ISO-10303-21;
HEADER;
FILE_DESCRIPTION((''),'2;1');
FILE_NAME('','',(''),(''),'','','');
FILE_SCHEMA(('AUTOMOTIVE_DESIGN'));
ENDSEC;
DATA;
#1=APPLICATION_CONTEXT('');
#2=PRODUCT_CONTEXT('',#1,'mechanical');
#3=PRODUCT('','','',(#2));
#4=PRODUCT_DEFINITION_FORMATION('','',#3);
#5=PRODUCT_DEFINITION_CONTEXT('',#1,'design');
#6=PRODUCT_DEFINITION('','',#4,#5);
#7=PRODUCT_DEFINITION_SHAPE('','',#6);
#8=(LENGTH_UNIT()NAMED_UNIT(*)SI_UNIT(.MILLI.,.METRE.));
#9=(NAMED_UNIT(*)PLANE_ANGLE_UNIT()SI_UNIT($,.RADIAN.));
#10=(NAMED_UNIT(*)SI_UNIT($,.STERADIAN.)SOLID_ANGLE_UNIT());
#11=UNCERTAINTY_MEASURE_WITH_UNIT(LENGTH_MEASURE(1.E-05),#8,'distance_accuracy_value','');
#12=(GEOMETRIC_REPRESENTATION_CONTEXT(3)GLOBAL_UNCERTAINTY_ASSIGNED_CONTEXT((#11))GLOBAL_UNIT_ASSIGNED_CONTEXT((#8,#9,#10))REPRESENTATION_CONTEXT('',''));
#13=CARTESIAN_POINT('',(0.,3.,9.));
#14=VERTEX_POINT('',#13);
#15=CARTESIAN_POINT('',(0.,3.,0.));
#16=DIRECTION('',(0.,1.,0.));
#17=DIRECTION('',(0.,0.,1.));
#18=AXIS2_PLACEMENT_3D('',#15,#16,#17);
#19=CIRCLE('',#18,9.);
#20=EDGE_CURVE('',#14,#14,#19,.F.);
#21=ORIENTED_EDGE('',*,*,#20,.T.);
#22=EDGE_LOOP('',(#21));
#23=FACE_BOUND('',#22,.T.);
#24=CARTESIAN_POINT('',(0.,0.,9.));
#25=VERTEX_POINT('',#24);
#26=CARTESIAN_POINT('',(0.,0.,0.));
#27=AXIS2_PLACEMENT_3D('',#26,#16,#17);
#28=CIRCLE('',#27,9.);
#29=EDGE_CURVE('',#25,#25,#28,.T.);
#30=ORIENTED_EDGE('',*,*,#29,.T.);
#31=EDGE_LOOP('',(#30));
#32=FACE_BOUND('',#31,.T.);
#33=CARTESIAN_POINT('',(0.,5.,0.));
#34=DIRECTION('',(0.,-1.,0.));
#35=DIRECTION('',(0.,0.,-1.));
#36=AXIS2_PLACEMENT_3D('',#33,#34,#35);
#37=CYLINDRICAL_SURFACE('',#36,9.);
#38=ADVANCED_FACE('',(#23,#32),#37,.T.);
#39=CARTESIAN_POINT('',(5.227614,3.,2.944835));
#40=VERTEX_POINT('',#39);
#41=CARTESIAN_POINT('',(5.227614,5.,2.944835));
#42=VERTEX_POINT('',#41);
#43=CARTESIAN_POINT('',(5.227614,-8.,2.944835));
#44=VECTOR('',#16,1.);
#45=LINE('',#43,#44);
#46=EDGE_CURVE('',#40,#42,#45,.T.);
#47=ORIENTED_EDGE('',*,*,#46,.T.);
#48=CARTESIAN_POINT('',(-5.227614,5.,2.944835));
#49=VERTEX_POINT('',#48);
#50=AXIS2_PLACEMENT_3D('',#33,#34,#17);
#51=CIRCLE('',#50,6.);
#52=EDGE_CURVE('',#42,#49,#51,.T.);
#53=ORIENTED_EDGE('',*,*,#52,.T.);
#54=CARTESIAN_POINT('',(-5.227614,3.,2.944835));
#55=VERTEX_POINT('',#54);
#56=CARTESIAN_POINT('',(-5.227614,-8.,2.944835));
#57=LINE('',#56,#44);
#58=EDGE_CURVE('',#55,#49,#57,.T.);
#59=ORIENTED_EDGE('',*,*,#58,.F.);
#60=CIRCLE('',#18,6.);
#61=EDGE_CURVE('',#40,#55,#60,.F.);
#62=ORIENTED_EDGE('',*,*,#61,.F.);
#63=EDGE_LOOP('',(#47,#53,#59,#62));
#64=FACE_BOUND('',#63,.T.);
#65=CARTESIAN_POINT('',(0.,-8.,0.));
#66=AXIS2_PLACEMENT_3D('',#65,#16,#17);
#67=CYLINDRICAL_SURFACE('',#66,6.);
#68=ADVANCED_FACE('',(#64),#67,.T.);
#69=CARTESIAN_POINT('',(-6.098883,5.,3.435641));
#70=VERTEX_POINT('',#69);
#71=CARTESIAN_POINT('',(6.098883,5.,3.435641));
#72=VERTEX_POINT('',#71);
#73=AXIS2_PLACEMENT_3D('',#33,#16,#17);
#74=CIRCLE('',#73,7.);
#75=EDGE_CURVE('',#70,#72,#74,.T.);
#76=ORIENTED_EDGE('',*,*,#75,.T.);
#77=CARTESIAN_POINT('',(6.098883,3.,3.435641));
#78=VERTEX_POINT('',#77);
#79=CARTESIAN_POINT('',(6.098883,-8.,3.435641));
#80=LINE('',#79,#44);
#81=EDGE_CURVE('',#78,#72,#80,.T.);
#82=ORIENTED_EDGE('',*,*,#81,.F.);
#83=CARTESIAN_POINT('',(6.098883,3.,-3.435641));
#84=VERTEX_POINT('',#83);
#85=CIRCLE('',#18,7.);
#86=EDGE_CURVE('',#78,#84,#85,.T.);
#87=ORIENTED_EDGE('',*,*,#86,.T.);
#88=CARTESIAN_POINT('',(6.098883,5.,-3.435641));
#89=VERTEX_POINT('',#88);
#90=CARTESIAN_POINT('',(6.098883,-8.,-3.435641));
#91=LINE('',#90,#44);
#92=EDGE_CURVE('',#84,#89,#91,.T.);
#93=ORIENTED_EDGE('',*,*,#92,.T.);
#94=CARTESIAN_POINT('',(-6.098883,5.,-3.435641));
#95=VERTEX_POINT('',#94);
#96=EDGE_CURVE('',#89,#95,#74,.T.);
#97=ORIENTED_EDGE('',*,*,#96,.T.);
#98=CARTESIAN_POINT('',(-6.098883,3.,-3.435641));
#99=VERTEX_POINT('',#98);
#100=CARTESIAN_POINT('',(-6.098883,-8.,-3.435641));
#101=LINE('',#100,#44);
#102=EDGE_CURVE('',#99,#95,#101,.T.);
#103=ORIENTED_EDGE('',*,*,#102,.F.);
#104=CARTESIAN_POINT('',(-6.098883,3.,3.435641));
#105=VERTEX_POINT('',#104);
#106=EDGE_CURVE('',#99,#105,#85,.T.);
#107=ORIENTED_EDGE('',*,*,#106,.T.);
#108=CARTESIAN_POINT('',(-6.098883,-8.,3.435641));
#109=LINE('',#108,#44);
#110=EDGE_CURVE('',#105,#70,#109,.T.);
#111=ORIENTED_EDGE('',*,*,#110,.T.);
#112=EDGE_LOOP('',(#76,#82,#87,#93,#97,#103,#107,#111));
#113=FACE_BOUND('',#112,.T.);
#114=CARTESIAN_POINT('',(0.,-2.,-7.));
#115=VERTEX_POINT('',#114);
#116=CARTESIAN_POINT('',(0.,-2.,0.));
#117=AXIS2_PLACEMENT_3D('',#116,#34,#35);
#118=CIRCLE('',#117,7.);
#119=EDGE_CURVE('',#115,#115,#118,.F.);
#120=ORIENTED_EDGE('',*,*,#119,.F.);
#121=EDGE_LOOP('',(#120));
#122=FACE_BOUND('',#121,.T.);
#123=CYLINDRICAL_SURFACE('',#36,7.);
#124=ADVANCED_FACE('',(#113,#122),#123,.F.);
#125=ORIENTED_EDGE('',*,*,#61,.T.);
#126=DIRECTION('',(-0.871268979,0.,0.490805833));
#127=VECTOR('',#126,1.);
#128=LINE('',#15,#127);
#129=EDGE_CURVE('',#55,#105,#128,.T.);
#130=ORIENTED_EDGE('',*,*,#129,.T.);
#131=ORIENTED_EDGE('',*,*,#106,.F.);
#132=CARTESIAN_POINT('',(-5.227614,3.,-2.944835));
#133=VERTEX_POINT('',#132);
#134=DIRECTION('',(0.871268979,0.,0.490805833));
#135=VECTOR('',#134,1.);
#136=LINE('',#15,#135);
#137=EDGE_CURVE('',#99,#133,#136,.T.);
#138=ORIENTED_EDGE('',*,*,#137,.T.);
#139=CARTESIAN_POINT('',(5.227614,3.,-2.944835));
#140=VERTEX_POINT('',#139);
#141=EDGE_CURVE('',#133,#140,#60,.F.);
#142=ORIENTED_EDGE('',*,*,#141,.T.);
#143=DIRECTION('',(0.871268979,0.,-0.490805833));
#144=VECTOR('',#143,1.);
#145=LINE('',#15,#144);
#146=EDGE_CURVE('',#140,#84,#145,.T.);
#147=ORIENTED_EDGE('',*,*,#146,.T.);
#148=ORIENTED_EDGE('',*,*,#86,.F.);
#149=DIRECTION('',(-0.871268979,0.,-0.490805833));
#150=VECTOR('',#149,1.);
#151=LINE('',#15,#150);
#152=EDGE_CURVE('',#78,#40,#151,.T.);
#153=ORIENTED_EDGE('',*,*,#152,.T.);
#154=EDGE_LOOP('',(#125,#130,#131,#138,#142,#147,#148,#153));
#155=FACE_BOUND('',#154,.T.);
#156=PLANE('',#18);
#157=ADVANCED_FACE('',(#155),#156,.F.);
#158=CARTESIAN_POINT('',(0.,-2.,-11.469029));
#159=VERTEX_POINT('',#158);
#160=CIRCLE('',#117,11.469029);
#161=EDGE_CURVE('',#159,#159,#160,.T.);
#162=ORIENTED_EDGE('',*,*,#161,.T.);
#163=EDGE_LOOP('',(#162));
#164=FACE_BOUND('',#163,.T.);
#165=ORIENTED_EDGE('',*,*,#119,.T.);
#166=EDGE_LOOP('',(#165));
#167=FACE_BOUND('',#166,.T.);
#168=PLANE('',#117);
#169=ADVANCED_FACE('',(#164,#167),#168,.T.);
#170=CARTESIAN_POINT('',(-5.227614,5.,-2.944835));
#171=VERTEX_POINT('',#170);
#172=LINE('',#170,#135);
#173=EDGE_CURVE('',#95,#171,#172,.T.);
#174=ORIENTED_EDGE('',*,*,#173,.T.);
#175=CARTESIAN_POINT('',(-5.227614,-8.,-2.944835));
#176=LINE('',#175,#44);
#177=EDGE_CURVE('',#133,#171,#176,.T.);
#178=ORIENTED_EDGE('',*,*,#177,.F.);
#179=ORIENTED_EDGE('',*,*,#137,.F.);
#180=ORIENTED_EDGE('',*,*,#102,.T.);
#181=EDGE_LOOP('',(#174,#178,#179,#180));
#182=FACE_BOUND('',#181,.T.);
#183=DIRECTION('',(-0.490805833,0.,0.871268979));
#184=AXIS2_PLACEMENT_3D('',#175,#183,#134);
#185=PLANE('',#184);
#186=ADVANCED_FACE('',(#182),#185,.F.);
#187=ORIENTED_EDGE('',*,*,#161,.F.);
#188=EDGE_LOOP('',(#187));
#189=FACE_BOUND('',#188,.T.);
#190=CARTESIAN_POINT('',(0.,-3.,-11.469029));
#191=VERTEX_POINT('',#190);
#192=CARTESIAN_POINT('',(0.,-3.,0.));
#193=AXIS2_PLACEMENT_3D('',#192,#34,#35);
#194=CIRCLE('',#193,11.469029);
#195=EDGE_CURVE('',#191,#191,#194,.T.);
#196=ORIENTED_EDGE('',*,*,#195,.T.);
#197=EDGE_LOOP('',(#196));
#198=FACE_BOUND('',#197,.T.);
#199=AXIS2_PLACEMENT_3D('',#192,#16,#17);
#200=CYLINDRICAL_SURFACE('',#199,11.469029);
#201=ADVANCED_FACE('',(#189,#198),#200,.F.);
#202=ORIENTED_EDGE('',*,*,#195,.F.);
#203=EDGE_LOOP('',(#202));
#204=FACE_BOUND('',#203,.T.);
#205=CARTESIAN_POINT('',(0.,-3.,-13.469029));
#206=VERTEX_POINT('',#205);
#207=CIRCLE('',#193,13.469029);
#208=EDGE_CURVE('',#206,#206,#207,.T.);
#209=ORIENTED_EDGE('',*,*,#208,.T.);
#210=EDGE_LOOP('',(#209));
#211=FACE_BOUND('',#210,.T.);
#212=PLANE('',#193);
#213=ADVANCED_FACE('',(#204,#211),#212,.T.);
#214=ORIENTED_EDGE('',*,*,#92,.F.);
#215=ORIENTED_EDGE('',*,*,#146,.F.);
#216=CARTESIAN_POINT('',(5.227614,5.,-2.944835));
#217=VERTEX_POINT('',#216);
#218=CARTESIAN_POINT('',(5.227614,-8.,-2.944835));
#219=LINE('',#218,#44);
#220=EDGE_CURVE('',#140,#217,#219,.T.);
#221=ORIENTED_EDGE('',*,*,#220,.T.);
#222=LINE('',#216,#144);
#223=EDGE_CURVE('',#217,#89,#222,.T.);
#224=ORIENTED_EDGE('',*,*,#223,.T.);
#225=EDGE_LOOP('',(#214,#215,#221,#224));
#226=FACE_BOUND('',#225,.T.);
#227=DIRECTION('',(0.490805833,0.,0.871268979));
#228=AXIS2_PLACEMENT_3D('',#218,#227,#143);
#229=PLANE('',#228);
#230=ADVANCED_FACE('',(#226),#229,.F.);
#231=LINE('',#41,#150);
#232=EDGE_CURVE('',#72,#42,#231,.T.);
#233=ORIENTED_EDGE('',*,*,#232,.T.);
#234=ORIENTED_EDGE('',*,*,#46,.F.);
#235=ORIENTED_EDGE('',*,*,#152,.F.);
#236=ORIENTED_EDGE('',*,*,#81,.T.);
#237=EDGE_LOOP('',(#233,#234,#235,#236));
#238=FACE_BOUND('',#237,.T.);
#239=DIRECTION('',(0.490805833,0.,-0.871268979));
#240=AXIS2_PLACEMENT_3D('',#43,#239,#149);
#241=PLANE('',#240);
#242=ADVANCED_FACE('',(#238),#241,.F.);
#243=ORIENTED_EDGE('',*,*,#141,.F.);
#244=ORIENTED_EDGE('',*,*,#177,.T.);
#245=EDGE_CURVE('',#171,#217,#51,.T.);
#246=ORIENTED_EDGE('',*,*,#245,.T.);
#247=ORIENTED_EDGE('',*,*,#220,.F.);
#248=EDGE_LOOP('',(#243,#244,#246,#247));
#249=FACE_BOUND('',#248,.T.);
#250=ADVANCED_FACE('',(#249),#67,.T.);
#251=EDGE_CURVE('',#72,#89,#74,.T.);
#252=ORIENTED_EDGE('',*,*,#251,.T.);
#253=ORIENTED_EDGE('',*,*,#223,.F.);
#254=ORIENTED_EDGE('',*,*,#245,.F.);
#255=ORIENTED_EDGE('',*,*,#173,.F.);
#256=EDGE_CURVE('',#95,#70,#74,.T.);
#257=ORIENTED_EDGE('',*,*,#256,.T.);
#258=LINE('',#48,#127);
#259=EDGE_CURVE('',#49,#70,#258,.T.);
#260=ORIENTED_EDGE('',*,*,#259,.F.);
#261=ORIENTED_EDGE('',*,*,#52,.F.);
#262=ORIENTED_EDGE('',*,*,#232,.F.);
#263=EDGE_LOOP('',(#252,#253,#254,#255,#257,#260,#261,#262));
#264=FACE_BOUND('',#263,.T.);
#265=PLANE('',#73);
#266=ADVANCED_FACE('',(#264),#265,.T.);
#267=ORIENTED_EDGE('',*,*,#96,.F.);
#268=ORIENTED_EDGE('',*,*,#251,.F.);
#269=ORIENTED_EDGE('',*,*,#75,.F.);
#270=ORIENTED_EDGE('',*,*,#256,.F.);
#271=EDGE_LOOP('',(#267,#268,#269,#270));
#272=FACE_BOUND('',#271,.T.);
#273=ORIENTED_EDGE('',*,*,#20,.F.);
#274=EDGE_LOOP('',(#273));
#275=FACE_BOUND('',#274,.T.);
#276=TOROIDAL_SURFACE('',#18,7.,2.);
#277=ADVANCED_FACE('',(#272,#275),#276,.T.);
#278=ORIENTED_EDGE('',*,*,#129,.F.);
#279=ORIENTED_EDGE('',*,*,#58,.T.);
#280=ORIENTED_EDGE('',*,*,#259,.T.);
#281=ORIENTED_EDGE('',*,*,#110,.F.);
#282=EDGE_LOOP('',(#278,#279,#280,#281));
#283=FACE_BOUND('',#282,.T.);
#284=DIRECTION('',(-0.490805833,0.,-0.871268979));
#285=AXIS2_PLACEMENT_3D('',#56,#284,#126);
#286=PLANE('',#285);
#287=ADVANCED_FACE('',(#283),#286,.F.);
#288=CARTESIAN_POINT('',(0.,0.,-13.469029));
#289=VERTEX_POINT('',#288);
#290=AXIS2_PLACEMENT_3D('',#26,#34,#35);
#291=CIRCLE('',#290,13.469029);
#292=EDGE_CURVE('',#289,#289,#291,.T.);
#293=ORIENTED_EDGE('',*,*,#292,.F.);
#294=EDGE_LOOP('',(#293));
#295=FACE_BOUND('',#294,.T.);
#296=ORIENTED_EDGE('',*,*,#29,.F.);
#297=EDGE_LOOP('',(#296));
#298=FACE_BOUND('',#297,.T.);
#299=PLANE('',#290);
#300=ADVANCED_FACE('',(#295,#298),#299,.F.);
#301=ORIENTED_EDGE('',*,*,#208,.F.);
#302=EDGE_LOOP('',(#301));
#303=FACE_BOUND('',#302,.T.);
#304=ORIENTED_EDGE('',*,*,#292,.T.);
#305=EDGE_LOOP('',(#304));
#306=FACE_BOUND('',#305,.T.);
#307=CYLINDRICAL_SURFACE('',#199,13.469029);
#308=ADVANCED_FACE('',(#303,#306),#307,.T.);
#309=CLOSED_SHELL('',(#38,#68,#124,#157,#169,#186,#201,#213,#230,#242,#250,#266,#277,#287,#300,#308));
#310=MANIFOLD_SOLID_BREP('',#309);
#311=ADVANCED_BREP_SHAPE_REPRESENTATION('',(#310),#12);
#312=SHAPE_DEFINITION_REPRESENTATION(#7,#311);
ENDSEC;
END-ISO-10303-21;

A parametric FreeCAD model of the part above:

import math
import FreeCAD as App
import Part
import Sketcher
Q = App.Units.Quantity


def edges_at(feature, points):
    """Names of the edges that pass closest to the given points."""
    edges = feature.Shape.Edges
    near = lambda p: min(range(len(edges)), key=lambda i: edges[i].distToShape(Part.Vertex(*p))[0])
    return sorted({f"Edge{near(p) + 1}" for p in points})


def faces_at(feature, points):
    """Names of the faces that lie closest to the given points."""
    faces = feature.Shape.Faces
    near = lambda p: min(range(len(faces)), key=lambda i: faces[i].distToShape(Part.Vertex(*p))[0])
    return sorted({f"Face{near(p) + 1}" for p in points})

doc = App.newDocument("Part")
params = doc.addObject("Spreadsheet::Sheet", "Params")
for row, (alias, value) in enumerate([
    ("sketch1_diameter", "18 mm"),
    ("pad1_length", "5 mm"),
    ("pad2_length", "3 mm"),
    ("thickness_wall", "2 mm"),
    ("fillet_radius", "2 mm"),
    ("sketch3_radius", "6 mm"),
    ("sketch3_radius2", "7 mm"),
    ("pocket1_length", "13 mm"),
], start=1):
    params.set(f"A{row}", alias)
    params.set(f"B{row}", "=" + value)
    params.setAlias(f"B{row}", alias)

body = doc.addObject("PartDesign::Body", "Body")

# Sketch on XZ plane
sketch1 = doc.addObject("Sketcher::SketchObject", "Sketch")
body.addObject(sketch1)
sketch1.AttachmentSupport = (doc.XZ_Plane, [""])
sketch1.MapMode = "FlatFace"
sketch1.addGeometry(Part.Circle(App.Vector(0, 0, 0), App.Vector(0, 0, 1), 9), False)
sketch1.addConstraint(Sketcher.Constraint("Coincident", 0, 3, -1, 1))
sketch1.addConstraint(Sketcher.Constraint("Diameter", 0, Q("18 mm")))
sketch1.setExpression("Constraints[1]", "Params.sketch1_diameter")
pad1 = doc.addObject("PartDesign::Pad", "Pad")
body.addObject(pad1)
pad1.Profile = sketch1
pad1.setExpression("Length", "Params.pad1_length")
pad1.Reversed = True

# Sketch on XZ plane
sketch2 = doc.addObject("Sketcher::SketchObject", "Sketch001")
body.addObject(sketch2)
sketch2.AttachmentSupport = (doc.XZ_Plane, [""])
sketch2.MapMode = "FlatFace"
sketch2.addGeometry(Part.Circle(App.Vector(0, 0, 0), App.Vector(0, 0, 1), 13), False)
sketch2.addConstraint(Sketcher.Constraint("Coincident", 0, 3, -1, 1))
sketch2.addConstraint(Sketcher.Constraint("Diameter", 0, Q("26.938058 mm")))
pad2 = doc.addObject("PartDesign::Pad", "Pad001")
body.addObject(pad2)
pad2.Profile = sketch2
pad2.setExpression("Length", "Params.pad2_length")
doc.recompute()

thickness = doc.addObject("PartDesign::Thickness", "Thickness")
body.addObject(thickness)
thickness.Base = (pad2, faces_at(pad2, [(0, -3, 0)]))
thickness.setExpression("Value", "Params.thickness_wall")
thickness.Reversed = True
thickness.Join = "Intersection"
doc.recompute()

fillet = doc.addObject("PartDesign::Fillet", "Fillet")
body.addObject(fillet)
fillet.Base = (thickness, edges_at(thickness, [(0, 5, -9)]))
fillet.setExpression("Radius", "Params.fillet_radius")

# Sketch on XZ plane
sketch3 = doc.addObject("Sketcher::SketchObject", "Sketch002")
body.addObject(sketch3)
sketch3.AttachmentSupport = (doc.XZ_Plane, [""])
sketch3.MapMode = "FlatFace"
sketch3.AttachmentOffset = App.Placement(App.Vector(0, 0, 8), App.Rotation())
sketch3.addGeometry(Part.LineSegment(App.Vector(6.1, 3.4, 0), App.Vector(5.2, 2.9, 0)), False)
sketch3.addGeometry(Part.ArcOfCircle(Part.Circle(App.Vector(0, 0, 0), App.Vector(0, 0, 1), 6), math.radians(29), math.radians(151)), False)
sketch3.addGeometry(Part.LineSegment(App.Vector(-5.2, 2.9, 0), App.Vector(-6.1, 3.4, 0)), False)
sketch3.addGeometry(Part.ArcOfCircle(Part.Circle(App.Vector(0, 0, 0), App.Vector(0, 0, 1), 7), math.radians(29), math.radians(151)), False)
sketch3.addGeometry(Part.LineSegment(App.Vector(5.2, -2.9, 0), App.Vector(6.1, -3.4, 0)), False)
sketch3.addGeometry(Part.ArcOfCircle(Part.Circle(App.Vector(0, 0, 0), App.Vector(0, 0, 1), 7), math.radians(-151), math.radians(-29)), False)
sketch3.addGeometry(Part.LineSegment(App.Vector(-6.1, -3.4, 0), App.Vector(-5.2, -2.9, 0)), False)
sketch3.addGeometry(Part.ArcOfCircle(Part.Circle(App.Vector(0, 0, 0), App.Vector(0, 0, 1), 6), math.radians(-151), math.radians(-29)), False)
sketch3.addConstraint(Sketcher.Constraint("Coincident", 0, 2, 1, 1))
sketch3.addConstraint(Sketcher.Constraint("Coincident", 1, 2, 2, 1))
sketch3.addConstraint(Sketcher.Constraint("Coincident", 2, 2, 3, 2))
sketch3.addConstraint(Sketcher.Constraint("Coincident", 3, 1, 0, 1))
sketch3.addConstraint(Sketcher.Constraint("Coincident", 4, 2, 5, 2))
sketch3.addConstraint(Sketcher.Constraint("Coincident", 5, 1, 6, 1))
sketch3.addConstraint(Sketcher.Constraint("Coincident", 6, 2, 7, 1))
sketch3.addConstraint(Sketcher.Constraint("Coincident", 7, 2, 4, 1))
sketch3.addConstraint(Sketcher.Constraint("Coincident", 1, 3, -1, 1))
sketch3.addConstraint(Sketcher.Constraint("Coincident", 3, 3, -1, 1))
sketch3.addConstraint(Sketcher.Constraint("Coincident", 5, 3, -1, 1))
sketch3.addConstraint(Sketcher.Constraint("Coincident", 7, 3, -1, 1))
sketch3.addConstraint(Sketcher.Constraint("Equal", 3, 5))
sketch3.addConstraint(Sketcher.Constraint("Equal", 1, 7))
sketch3.addConstraint(Sketcher.Constraint("Parallel", 2, 4))
sketch3.addConstraint(Sketcher.Constraint("Parallel", 0, 6))
sketch3.addConstraint(Sketcher.Constraint("Horizontal", 0, 2, 1, 2))
sketch3.addConstraint(Sketcher.Constraint("Horizontal", 2, 2, 3, 1))
sketch3.addConstraint(Sketcher.Constraint("Horizontal", 4, 2, 5, 1))
sketch3.addConstraint(Sketcher.Constraint("Vertical", 3, 1, 4, 2))
sketch3.addConstraint(Sketcher.Constraint("Radius", 1, Q("6 mm")))
sketch3.addConstraint(Sketcher.Constraint("Radius", 3, Q("7 mm")))
sketch3.addConstraint(Sketcher.Constraint("DistanceY", -1, 1, 2, 2, Q("3.435641 mm")))
sketch3.addConstraint(Sketcher.Constraint("DistanceX", 2, 2, 1, 2, Q("0.871269 mm")))
sketch3.setExpression("Constraints[20]", "Params.sketch3_radius")
sketch3.setExpression("Constraints[21]", "Params.sketch3_radius2")
pocket1 = doc.addObject("PartDesign::Pocket", "Pocket")
body.addObject(pocket1)
pocket1.Profile = sketch3
pocket1.setExpression("Length", "Params.pocket1_length")

doc.recompute()
